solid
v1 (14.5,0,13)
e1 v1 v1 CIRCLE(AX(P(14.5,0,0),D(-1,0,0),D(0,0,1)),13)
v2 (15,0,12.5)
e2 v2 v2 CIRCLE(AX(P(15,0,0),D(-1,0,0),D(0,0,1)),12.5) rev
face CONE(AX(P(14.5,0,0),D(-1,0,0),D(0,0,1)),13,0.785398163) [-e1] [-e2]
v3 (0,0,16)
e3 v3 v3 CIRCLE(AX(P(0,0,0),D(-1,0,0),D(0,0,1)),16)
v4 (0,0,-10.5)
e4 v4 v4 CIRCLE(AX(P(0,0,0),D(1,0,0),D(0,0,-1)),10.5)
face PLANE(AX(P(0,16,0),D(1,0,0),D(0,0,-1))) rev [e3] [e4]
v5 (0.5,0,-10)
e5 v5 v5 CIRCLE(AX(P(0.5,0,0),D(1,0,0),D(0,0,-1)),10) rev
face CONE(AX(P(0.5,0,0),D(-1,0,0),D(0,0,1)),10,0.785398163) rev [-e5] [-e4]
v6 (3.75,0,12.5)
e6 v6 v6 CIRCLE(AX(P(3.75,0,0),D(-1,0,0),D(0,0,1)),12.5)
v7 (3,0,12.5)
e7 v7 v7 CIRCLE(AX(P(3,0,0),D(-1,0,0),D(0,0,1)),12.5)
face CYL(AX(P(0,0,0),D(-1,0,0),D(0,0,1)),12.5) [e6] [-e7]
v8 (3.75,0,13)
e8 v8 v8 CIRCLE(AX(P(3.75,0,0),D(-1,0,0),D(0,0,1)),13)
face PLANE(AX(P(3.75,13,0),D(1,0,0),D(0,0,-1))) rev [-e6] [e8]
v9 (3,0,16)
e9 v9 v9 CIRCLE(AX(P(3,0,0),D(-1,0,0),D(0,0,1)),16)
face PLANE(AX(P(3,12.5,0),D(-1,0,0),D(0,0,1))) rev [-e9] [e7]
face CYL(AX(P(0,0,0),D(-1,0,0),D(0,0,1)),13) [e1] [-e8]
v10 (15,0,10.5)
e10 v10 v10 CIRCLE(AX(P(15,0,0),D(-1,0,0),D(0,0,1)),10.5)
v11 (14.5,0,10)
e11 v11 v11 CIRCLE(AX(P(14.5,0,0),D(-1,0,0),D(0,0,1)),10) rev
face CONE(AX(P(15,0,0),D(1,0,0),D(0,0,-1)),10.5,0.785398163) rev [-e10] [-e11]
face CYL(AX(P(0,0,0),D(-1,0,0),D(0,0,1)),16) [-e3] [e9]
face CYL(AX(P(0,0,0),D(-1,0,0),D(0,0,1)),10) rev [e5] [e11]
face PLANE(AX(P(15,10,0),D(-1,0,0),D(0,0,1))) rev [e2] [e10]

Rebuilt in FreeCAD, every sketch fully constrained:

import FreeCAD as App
import Part
import Sketcher

V = App.Vector
Q = App.Units.Quantity


def edges_at(feature, points):
    """Names of the edges that pass closest to the given points."""
    edges = feature.Shape.Edges
    near = lambda p: min(range(len(edges)), key=lambda i: edges[i].distToShape(Part.Vertex(*p))[0])
    return sorted({f"Edge{near(p) + 1}" for p in points})

doc = App.newDocument("Part")
body = doc.addObject("PartDesign::Body", "Body")

sketch1 = body.newObject("Sketcher::SketchObject", "Sketch")
sketch1.AttachmentSupport = (doc.getObject("XY_Plane"), [""])
sketch1.MapMode = "FlatFace"
sketch1.addGeometry([
    Part.LineSegment(V(0, 16, 0), V(0, 10, 0)),
    Part.LineSegment(V(0, 10, 0), V(15, 10, 0)),
    Part.LineSegment(V(15, 10, 0), V(15, 13, 0)),
    Part.LineSegment(V(15, 13, 0), V(3.75, 13, 0)),
    Part.LineSegment(V(3.75, 13, 0), V(3.75, 12.5, 0)),
    Part.LineSegment(V(3.75, 12.5, 0), V(3, 12.5, 0)),
    Part.LineSegment(V(3, 12.5, 0), V(3, 16, 0)),
    Part.LineSegment(V(3, 16, 0), V(0, 16, 0)),
], False)
sketch1.addConstraint([
    Sketcher.Constraint("Coincident", 0, 2, 1, 1),
    Sketcher.Constraint("Coincident", 1, 2, 2, 1),
    Sketcher.Constraint("Coincident", 2, 2, 3, 1),
    Sketcher.Constraint("Coincident", 3, 2, 4, 1),
    Sketcher.Constraint("Coincident", 4, 2, 5, 1),
    Sketcher.Constraint("Coincident", 5, 2, 6, 1),
    Sketcher.Constraint("Coincident", 6, 2, 7, 1),
    Sketcher.Constraint("Coincident", 7, 2, 0, 1),
    Sketcher.Constraint("Vertical", 0),
    Sketcher.Constraint("Horizontal", 1),
    Sketcher.Constraint("Vertical", 2),
    Sketcher.Constraint("Horizontal", 3),
    Sketcher.Constraint("Vertical", 4),
    Sketcher.Constraint("Horizontal", 5),
    Sketcher.Constraint("Vertical", 6),
    Sketcher.Constraint("Horizontal", 7),
    Sketcher.Constraint("PointOnObject", 0, 2, -2),
    Sketcher.Constraint("Equal", 7, 2),
    Sketcher.Constraint("DistanceX", 1, 1, 1, 2, Q("15 mm")),
    Sketcher.Constraint("DistanceX", 7, 2, 7, 1, Q("3 mm")),
    Sketcher.Constraint("DistanceY", 0, 2, 0, 1, Q("6 mm")),
    Sketcher.Constraint("DistanceY", 4, 2, 4, 1, Q("0.5 mm")),
    Sketcher.Constraint("DistanceY", -1, 1, 0, 2, Q("10 mm")),
    Sketcher.Constraint("DistanceX", 3, 2, 3, 1, Q("11.25 mm")),
])
revolution = body.newObject("PartDesign::Revolution", "Revolution")
revolution.Profile = sketch1
revolution.ReferenceAxis = (sketch1, ["H_Axis"])
revolution.Angle = 360
doc.recompute()

chamfer = body.newObject("PartDesign::Chamfer", "Chamfer")
chamfer.Base = (revolution, edges_at(revolution, [(0, 0, -10), (15, 0, -10), (15, 0, -13)]))
chamfer.Size = 0.5

doc.recompute()
